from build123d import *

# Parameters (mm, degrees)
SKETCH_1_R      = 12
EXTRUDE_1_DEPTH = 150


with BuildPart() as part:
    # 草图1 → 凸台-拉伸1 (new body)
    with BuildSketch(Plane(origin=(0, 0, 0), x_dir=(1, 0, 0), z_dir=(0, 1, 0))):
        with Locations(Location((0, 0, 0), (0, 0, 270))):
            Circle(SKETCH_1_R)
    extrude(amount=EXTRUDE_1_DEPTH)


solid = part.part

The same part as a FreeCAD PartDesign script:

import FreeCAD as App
import Part
import Sketcher

doc = App.newDocument("Part")
params = doc.addObject("Spreadsheet::Sheet", "Params")
for row, (alias, value) in enumerate([
    ("sketch1_diameter", "24 mm"),
    ("pad1_length", "150 mm"),
], start=1):
    params.set(f"A{row}", alias)
    params.set(f"B{row}", "=" + value)
    params.setAlias(f"B{row}", alias)

body = doc.addObject("PartDesign::Body", "Body")

# Sketch on XZ plane
sketch1 = body.newObject("Sketcher::SketchObject", "Sketch")
sketch1.AttachmentSupport = (doc.getObject("XZ_Plane"), [""])
sketch1.MapMode = "FlatFace"
sketch1.addGeometry(Part.Circle(App.Vector(0, 0, 0), App.Vector(0, 0, 1), 12), False)
sketch1.addConstraint([
    Sketcher.Constraint("Coincident", 0, 3, -1, 1),
    Sketcher.Constraint("Diameter", 0, 24.0),
])
sketch1.setExpression("Constraints[1]", "Params.sketch1_diameter")
pad1 = body.newObject("PartDesign::Pad", "Pad")
pad1.Profile = sketch1
pad1.setExpression("Length", "Params.pad1_length")
pad1.Reversed = True

doc.recompute()
